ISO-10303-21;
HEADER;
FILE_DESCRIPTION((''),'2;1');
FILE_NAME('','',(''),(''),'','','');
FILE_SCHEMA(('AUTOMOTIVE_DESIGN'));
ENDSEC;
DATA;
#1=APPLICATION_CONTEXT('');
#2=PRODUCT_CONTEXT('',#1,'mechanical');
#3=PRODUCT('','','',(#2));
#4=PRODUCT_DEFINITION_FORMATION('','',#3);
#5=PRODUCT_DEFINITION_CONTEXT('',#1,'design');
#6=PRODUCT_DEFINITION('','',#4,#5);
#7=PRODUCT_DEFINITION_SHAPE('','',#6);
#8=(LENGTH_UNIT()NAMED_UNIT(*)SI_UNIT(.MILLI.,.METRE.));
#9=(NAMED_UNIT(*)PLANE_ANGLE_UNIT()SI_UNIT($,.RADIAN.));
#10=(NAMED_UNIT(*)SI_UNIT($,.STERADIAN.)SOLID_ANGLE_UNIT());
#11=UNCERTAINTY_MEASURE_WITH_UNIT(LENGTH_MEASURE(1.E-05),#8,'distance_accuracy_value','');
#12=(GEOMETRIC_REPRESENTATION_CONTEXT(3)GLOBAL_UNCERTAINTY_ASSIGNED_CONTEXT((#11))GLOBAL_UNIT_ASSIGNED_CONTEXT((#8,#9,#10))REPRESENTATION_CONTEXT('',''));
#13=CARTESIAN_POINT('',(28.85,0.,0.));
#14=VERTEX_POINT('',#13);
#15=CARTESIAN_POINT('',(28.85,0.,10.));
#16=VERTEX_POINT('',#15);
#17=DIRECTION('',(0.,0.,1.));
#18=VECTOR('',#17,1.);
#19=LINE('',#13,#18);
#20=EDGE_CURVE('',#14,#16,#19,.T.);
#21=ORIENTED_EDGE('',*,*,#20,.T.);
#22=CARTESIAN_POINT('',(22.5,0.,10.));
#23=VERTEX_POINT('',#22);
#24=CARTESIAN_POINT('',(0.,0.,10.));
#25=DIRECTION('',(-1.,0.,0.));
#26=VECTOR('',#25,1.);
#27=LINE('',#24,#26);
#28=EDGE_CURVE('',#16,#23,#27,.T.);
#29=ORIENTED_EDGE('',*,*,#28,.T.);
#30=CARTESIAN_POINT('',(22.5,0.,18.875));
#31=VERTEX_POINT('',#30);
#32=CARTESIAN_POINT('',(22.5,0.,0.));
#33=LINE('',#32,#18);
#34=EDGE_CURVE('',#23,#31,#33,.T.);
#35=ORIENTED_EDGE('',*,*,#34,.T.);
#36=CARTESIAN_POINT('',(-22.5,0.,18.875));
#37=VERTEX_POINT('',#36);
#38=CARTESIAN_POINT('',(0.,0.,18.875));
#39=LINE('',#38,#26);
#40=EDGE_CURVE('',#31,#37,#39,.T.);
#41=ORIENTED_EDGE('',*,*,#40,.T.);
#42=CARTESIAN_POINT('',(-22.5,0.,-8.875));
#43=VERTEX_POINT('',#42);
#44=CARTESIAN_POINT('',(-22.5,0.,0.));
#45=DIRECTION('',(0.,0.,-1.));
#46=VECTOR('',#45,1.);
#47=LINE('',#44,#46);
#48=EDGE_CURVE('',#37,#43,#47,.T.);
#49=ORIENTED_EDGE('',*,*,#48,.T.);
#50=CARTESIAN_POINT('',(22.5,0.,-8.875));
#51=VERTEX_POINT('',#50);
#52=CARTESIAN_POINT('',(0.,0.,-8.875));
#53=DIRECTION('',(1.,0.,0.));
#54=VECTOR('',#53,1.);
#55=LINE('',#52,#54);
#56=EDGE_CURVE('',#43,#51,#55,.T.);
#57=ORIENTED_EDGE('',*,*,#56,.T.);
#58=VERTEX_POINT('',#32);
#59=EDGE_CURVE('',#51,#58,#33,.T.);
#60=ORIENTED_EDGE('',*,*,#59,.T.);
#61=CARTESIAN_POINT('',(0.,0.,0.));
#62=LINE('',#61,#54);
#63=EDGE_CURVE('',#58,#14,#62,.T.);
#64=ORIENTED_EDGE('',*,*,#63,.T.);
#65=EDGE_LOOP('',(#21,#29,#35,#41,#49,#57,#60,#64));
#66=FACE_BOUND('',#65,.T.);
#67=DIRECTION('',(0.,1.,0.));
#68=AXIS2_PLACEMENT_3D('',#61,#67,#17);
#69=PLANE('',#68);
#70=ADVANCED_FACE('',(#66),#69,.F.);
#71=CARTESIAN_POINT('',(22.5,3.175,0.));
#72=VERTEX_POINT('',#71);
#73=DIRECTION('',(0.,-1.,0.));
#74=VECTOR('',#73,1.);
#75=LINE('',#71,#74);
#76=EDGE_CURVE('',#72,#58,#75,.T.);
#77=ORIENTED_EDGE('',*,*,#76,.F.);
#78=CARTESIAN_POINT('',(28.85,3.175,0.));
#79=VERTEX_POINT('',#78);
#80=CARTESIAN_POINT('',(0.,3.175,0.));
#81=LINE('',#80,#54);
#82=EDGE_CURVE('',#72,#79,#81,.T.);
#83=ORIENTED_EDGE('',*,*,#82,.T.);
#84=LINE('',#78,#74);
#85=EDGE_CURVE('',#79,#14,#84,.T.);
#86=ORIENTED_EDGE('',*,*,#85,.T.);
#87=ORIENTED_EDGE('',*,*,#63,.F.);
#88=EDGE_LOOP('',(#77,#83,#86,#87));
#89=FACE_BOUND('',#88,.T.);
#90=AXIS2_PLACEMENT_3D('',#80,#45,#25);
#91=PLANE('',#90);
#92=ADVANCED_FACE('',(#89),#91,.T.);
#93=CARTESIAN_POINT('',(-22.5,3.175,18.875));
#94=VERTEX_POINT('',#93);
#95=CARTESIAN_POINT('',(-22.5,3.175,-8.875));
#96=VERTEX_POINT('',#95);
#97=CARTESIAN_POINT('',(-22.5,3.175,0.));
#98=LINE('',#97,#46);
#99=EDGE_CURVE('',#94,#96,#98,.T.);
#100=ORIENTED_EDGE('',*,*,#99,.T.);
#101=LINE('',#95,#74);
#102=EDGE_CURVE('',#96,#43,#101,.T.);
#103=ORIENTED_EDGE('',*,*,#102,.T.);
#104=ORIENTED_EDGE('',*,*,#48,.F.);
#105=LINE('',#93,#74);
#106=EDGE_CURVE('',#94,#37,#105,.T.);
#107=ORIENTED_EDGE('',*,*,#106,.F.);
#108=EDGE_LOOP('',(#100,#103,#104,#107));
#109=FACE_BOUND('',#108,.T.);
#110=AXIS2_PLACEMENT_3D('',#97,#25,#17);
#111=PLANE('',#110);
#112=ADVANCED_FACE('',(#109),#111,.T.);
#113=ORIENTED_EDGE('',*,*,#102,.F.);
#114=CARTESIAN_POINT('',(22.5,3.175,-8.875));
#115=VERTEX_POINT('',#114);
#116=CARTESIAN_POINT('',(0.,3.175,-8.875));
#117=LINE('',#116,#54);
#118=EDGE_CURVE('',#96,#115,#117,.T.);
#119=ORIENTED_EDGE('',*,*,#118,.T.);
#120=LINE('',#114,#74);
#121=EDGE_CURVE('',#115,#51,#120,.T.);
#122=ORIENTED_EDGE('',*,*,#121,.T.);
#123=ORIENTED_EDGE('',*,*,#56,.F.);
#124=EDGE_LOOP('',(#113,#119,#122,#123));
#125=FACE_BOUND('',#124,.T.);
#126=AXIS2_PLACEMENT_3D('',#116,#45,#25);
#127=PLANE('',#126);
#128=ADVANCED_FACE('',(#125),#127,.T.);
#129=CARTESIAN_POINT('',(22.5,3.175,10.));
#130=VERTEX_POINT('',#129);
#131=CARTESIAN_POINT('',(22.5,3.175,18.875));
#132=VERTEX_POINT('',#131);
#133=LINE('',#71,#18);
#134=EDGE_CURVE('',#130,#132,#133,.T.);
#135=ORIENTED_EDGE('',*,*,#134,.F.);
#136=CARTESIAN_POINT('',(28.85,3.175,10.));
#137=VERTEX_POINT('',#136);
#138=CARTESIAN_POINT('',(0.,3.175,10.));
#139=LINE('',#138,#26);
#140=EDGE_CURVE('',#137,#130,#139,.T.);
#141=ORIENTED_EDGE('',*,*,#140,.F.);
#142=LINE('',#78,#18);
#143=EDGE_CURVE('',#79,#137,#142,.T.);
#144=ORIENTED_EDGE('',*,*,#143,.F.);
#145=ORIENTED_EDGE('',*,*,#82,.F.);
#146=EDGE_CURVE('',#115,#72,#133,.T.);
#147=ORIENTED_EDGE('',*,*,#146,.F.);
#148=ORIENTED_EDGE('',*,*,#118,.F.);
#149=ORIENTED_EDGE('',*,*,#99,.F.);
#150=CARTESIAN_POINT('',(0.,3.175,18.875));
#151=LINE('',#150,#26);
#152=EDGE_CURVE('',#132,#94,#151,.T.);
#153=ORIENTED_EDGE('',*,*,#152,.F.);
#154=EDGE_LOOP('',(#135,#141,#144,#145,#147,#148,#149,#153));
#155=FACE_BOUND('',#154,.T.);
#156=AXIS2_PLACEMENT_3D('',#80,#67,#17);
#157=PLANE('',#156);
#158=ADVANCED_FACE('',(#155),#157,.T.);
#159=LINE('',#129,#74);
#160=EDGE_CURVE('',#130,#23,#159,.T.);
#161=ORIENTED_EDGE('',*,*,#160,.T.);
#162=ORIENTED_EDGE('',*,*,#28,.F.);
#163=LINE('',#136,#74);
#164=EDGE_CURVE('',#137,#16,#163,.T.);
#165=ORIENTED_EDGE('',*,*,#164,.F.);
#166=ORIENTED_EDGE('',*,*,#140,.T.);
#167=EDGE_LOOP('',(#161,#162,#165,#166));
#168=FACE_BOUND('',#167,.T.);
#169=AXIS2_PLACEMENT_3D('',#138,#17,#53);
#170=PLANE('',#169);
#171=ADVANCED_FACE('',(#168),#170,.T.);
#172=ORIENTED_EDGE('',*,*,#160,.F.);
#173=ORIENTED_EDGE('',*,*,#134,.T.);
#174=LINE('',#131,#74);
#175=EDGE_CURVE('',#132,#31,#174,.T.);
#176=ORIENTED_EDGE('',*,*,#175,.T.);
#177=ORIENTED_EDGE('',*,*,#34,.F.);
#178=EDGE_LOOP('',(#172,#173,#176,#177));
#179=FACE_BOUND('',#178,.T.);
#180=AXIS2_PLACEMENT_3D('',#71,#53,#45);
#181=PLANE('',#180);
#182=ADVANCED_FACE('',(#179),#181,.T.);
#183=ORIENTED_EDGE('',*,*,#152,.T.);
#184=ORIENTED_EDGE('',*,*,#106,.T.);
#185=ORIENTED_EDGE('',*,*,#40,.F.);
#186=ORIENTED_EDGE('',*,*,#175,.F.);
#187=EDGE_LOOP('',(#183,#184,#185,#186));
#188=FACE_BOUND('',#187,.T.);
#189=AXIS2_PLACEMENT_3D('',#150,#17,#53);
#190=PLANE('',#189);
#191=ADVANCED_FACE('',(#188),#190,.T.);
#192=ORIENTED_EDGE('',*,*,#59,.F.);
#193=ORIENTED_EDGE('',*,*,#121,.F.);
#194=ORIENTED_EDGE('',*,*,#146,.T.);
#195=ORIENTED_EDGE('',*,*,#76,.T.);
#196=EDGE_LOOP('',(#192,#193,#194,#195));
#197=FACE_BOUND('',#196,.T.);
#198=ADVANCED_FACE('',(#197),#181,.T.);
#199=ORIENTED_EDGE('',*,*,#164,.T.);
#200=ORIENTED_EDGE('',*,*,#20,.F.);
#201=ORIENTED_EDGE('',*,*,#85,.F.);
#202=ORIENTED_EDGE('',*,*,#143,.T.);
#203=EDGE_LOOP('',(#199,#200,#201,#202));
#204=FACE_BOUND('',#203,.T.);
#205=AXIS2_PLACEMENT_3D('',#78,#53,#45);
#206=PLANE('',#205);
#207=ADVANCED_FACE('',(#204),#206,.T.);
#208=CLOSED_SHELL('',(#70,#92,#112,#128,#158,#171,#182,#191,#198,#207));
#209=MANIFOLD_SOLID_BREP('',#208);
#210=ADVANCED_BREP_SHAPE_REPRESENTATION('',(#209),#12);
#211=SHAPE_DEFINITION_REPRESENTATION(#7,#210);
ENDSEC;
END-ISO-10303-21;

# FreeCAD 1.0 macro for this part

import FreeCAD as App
import Part
import Sketcher

V = App.Vector


def add_polygon(sketch, points):
    """Adds a closed chain of lines whose ends are joined by coincident constraints."""
    first, n = sketch.GeometryCount, len(points)
    for a, b in zip(points, points[1:] + points[:1]):
        sketch.addGeometry(Part.LineSegment(App.Vector(*a, 0), App.Vector(*b, 0)), False)
    for i in range(n):
        sketch.addConstraint(Sketcher.Constraint("Coincident", first + i, 2, first + (i + 1) % n, 1))

doc = App.newDocument("Part")
body = doc.addObject("PartDesign::Body", "Body")

# Sketch on XZ plane
sketch1 = body.newObject("Sketcher::SketchObject", "Sketch")
sketch1.AttachmentSupport = (doc.getObject("XZ_Plane"), [""])
sketch1.MapMode = "FlatFace"
add_polygon(sketch1, [(-22, -9), (-22, 19), (22, 19), (22, 10), (29, 10), (29, 0), (22, 0), (22, -9)])  # lines 0-7
sketch1.addConstraint([
    Sketcher.Constraint("Vertical", 0),
    Sketcher.Constraint("Horizontal", 1),
    Sketcher.Constraint("Vertical", 2),
    Sketcher.Constraint("Horizontal", 3),
    Sketcher.Constraint("Vertical", 4),
    Sketcher.Constraint("Horizontal", 5),
    Sketcher.Constraint("Vertical", 6),
    Sketcher.Constraint("Horizontal", 7),
    Sketcher.Constraint("PointOnObject", 4, 2, -1),
    Sketcher.Constraint("Vertical", 2, 2, 5, 2),
    Sketcher.Constraint("Equal", 2, 6),
    Sketcher.Constraint("DistanceX", 1, 1, 1, 2, 45.0),
    Sketcher.Constraint("DistanceY", 4, 2, 4, 1, 10.0),
    Sketcher.Constraint("DistanceX", 3, 1, 3, 2, 6.35),
    Sketcher.Constraint("DistanceY", 0, 1, 0, 2, 27.75),
    Sketcher.Constraint("DistanceX", 0, 2, -1, 1, 22.5),
])
pad1 = body.newObject("PartDesign::Pad", "Pad")
pad1.Profile = sketch1
pad1.Length = 3.175
pad1.Reversed = True

doc.recompute()
